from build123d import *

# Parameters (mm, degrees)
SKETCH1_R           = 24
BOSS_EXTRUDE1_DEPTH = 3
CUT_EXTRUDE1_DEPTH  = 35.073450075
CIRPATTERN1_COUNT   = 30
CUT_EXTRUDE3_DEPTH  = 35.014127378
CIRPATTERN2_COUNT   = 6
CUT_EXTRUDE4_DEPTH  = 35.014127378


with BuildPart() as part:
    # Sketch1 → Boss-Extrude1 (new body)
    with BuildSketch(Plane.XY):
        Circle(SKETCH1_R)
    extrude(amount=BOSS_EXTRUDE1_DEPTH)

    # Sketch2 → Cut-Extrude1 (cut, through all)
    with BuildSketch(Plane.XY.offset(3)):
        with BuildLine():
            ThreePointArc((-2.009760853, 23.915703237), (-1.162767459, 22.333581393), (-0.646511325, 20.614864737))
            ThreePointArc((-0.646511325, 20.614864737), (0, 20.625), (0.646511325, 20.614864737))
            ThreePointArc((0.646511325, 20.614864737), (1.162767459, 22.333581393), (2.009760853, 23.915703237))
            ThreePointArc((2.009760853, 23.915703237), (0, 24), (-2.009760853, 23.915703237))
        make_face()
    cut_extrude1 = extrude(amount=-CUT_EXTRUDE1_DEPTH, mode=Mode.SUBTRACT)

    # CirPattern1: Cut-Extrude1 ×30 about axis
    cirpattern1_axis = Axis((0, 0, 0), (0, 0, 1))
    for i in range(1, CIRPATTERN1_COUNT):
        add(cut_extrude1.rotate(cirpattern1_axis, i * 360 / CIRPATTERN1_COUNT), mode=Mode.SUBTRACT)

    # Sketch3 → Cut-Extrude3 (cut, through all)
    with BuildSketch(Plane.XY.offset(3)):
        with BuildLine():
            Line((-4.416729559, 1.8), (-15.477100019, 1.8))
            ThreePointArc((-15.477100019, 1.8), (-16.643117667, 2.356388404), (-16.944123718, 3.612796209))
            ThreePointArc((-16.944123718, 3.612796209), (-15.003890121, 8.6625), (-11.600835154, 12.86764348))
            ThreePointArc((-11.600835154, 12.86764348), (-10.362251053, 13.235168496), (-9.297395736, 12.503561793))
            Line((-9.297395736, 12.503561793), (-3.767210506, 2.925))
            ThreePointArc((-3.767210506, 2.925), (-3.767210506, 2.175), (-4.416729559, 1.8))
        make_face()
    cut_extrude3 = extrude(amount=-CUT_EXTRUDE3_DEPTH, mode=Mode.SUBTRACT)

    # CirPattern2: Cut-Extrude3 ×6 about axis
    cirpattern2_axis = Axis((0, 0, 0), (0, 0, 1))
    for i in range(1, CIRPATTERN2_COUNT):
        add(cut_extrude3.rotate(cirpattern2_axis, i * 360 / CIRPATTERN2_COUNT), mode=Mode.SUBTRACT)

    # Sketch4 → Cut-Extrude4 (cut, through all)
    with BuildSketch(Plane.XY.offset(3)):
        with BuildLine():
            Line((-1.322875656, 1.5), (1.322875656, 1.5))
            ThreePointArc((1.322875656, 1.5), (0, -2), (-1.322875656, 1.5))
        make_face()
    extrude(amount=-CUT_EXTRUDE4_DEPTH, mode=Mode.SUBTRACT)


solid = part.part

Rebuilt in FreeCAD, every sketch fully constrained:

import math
import FreeCAD as App
import Part
import Sketcher

V = App.Vector
Q = App.Units.Quantity

doc = App.newDocument("Part")
body = doc.addObject("PartDesign::Body", "Body")

# Sketch on XY plane
sketch1 = doc.addObject("Sketcher::SketchObject", "Sketch")
body.addObject(sketch1)
sketch1.AttachmentSupport = (doc.XY_Plane, [""])
sketch1.MapMode = "FlatFace"
sketch1.addGeometry(Part.Circle(V(0, 0, 0), V(0, 0, 1), 24), False)
sketch1.addConstraint([
    Sketcher.Constraint("Coincident", 0, 3, -1, 1),
    Sketcher.Constraint("Diameter", 0, Q("48 mm")),
])
pad1 = doc.addObject("PartDesign::Pad", "Pad")
body.addObject(pad1)
pad1.Profile = sketch1
pad1.Length = 3

# Sketch on XY plane
sketch2 = doc.addObject("Sketcher::SketchObject", "Sketch001")
body.addObject(sketch2)
sketch2.AttachmentSupport = (doc.XY_Plane, [""])
sketch2.MapMode = "FlatFace"
sketch2.AttachmentOffset = App.Placement(V(0, 0, 3), App.Rotation())
sketch2.addGeometry([
    Part.ArcOfCircle(Part.Circle(V(-9.5, 18.9, 0), V(0, 0, 1), 9), math.radians(11), math.radians(34)),
    Part.ArcOfCircle(Part.Circle(V(0, 0, 0), V(0, 0, 1), 20.6), math.radians(88.2), math.radians(91.8)),
    Part.ArcOfCircle(Part.Circle(V(9.5, 18.9, 0), V(0, 0, 1), 9), math.radians(146), math.radians(169)),
    Part.ArcOfCircle(Part.Circle(V(0, 0, 0), V(0, 0, 1), 24), math.radians(85.2), math.radians(94.8)),
], False)
sketch2.addConstraint([
    Sketcher.Constraint("Coincident", 0, 1, 1, 2),
    Sketcher.Constraint("Coincident", 1, 1, 2, 2),
    Sketcher.Constraint("Coincident", 2, 1, 3, 1),
    Sketcher.Constraint("Coincident", 3, 2, 0, 2),
    Sketcher.Constraint("Coincident", 1, 3, -1, 1),
    Sketcher.Constraint("Coincident", 3, 3, -1, 1),
    Sketcher.Constraint("Equal", 0, 2),
    Sketcher.Constraint("Symmetric", 0, 3, 2, 3, -2),
    Sketcher.Constraint("Radius", 0, Q("9 mm")),
    Sketcher.Constraint("Radius", 3, Q("24 mm")),
    Sketcher.Constraint("Radius", 1, Q("20.625001 mm")),
    Sketcher.Constraint("DistanceX", 0, 1, -1, 1, Q("0.646511 mm")),
    Sketcher.Constraint("DistanceX", -1, 1, 2, 1, Q("2.009761 mm")),
])
pocket1 = doc.addObject("PartDesign::Pocket", "Pocket")
body.addObject(pocket1)
pocket1.Profile = sketch2
pocket1.Type = "ThroughAll"
doc.recompute()

polarpattern = doc.addObject("PartDesign::PolarPattern", "PolarPattern")
body.addObject(polarpattern)
polarpattern.Originals = [pocket1]
polarpattern.Axis = (doc.Z_Axis, [""])
polarpattern.Angle = 360
polarpattern.Occurrences = 30
body.Tip = polarpattern

# Sketch on XY plane
sketch3 = doc.addObject("Sketcher::SketchObject", "Sketch002")
body.addObject(sketch3)
sketch3.AttachmentSupport = (doc.XY_Plane, [""])
sketch3.MapMode = "FlatFace"
sketch3.AttachmentOffset = App.Placement(V(0, 0, 3), App.Rotation())
sketch3.addGeometry([
    Part.LineSegment(V(-15.5, 1.8, 0), V(-4.4, 1.8, 0)),  # 0
    Part.ArcOfCircle(Part.Circle(V(-4.4, 2.5, 0), V(0, 0, 1), 0.8), math.radians(-90), math.radians(30)),  # 1
    Part.LineSegment(V(-3.8, 2.9, 0), V(-9.3, 12.5, 0)),  # 2
    Part.ArcOfCircle(Part.Circle(V(-10.6, 11.8, 0), V(0, 0, 1), 1.5), math.radians(30), math.radians(132)),  # 3
    Part.ArcOfCircle(Part.Circle(V(0, 0, 0), V(0, 0, 1), 17.3), math.radians(132), math.radians(168)),  # 4
    Part.ArcOfCircle(Part.Circle(V(-15.5, 3.3, 0), V(0, 0, 1), 1.5), math.radians(168), math.radians(270)),  # 5
], False)
sketch3.addConstraint([
    Sketcher.Constraint("Tangent", 0, 2, 1, 1),
    Sketcher.Constraint("Tangent", 1, 2, 2, 1),
    Sketcher.Constraint("Tangent", 2, 2, 3, 1),
    Sketcher.Constraint("Tangent", 3, 2, 4, 1),
    Sketcher.Constraint("Tangent", 4, 2, 5, 1),
    Sketcher.Constraint("Tangent", 5, 2, 0, 1),
    Sketcher.Constraint("Horizontal", 0),
    Sketcher.Constraint("Coincident", 4, 3, -1, 1),
    Sketcher.Constraint("Equal", 3, 5),
    Sketcher.Constraint("Radius", 3, Q("1.5 mm")),
    Sketcher.Constraint("Angle", 2, Q("120 deg")),
    Sketcher.Constraint("Radius", 1, Q("0.75 mm")),
    Sketcher.Constraint("Radius", 4, Q("17.325 mm")),
    Sketcher.Constraint("DistanceY", -1, 1, 5, 3, Q("3.3 mm")),
    Sketcher.Constraint("DistanceX", 0, 1, 0, 2, Q("11.06037 mm")),
])
pocket2 = doc.addObject("PartDesign::Pocket", "Pocket001")
body.addObject(pocket2)
pocket2.Profile = sketch3
pocket2.Type = "ThroughAll"
doc.recompute()

polarpattern2 = doc.addObject("PartDesign::PolarPattern", "PolarPattern001")
body.addObject(polarpattern2)
polarpattern2.Originals = [pocket2]
polarpattern2.Axis = (doc.Z_Axis, [""])
polarpattern2.Angle = 360
polarpattern2.Occurrences = 6
body.Tip = polarpattern2

# Sketch on XY plane
sketch4 = doc.addObject("Sketcher::SketchObject", "Sketch003")
body.addObject(sketch4)
sketch4.AttachmentSupport = (doc.XY_Plane, [""])
sketch4.MapMode = "FlatFace"
sketch4.AttachmentOffset = App.Placement(V(0, 0, 3), App.Rotation())
sketch4.addGeometry([
    Part.LineSegment(V(1.3, 1.5, 0), V(-1.3, 1.5, 0)),
    Part.ArcOfCircle(Part.Circle(V(0, 0, 0), V(0, 0, 1), 2), math.radians(131), math.radians(409)),
], False)
sketch4.addConstraint([
    Sketcher.Constraint("Coincident", 0, 1, 1, 2),
    Sketcher.Constraint("Coincident", 1, 1, 0, 2),
    Sketcher.Constraint("Horizontal", 0),
    Sketcher.Constraint("Coincident", 1, 3, -1, 1),
    Sketcher.Constraint("Radius", 1, Q("2 mm")),
    Sketcher.Constraint("DistanceY", -1, 1, 0, 1, Q("1.5 mm")),
])
pocket3 = doc.addObject("PartDesign::Pocket", "Pocket002")
body.addObject(pocket3)
pocket3.Profile = sketch4
pocket3.Type = "ThroughAll"

doc.recompute()
